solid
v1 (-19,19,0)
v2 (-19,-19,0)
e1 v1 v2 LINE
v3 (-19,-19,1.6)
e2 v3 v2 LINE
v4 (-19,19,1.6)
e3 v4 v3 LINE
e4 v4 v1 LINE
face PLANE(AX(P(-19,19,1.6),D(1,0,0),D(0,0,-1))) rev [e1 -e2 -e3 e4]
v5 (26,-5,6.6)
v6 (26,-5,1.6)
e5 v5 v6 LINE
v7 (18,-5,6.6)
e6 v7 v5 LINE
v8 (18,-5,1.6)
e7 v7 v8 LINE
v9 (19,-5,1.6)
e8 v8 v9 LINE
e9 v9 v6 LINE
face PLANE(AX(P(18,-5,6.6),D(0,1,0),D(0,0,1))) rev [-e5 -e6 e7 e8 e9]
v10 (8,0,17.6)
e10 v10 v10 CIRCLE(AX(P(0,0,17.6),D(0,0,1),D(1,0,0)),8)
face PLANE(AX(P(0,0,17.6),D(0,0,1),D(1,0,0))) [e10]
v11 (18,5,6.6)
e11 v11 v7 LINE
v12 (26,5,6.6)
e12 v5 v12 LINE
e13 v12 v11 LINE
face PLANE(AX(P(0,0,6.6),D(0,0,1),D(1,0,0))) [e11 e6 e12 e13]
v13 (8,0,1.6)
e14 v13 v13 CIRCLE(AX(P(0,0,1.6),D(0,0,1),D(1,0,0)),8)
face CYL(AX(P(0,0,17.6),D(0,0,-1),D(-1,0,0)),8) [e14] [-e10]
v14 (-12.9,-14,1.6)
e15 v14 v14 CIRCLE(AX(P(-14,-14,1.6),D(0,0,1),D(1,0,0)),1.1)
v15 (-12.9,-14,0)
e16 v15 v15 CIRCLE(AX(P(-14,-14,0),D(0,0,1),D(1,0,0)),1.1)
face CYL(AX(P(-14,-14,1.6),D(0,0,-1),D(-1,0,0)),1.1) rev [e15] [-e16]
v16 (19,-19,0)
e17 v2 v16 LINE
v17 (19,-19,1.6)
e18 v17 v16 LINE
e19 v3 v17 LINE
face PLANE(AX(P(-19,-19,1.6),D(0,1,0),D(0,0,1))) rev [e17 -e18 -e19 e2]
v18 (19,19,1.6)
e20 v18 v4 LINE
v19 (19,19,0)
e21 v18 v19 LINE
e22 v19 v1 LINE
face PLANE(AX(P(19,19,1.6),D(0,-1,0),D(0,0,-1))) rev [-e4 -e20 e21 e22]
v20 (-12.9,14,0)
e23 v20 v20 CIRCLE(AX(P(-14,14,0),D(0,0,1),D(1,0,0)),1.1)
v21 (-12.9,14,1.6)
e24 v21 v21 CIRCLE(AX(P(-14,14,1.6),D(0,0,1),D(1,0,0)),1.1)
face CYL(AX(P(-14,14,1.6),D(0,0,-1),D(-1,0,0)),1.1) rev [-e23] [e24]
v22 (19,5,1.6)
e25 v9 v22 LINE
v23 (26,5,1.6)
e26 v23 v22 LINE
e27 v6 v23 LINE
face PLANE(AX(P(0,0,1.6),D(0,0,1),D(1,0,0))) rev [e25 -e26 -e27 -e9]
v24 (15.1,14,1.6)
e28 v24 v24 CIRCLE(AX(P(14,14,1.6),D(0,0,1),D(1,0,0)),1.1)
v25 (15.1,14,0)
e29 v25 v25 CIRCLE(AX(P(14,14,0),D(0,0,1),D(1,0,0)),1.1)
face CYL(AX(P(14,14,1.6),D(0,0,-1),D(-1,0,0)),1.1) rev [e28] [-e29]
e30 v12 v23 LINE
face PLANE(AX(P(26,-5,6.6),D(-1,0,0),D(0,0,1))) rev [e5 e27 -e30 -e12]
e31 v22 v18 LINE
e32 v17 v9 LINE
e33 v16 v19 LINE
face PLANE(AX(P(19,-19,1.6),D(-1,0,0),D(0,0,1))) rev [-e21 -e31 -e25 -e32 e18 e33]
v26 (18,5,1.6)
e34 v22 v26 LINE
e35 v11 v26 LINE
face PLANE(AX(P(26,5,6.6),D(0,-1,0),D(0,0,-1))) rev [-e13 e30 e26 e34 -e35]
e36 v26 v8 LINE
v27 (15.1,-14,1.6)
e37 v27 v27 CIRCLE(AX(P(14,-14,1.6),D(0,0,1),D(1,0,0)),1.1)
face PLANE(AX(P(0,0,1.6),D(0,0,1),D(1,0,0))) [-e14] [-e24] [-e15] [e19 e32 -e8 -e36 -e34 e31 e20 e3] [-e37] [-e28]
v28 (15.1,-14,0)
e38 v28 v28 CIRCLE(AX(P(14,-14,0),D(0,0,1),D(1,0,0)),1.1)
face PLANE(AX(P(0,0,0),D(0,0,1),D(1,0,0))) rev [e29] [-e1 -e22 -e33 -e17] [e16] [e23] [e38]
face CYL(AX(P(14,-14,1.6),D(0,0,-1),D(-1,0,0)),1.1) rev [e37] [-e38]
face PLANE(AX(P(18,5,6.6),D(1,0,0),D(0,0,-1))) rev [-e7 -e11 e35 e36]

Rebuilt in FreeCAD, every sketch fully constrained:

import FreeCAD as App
import Part
import Sketcher

V = App.Vector


def add_polygon(sketch, points):
    """Adds a closed chain of lines whose ends are joined by coincident constraints."""
    first, n = sketch.GeometryCount, len(points)
    for a, b in zip(points, points[1:] + points[:1]):
        sketch.addGeometry(Part.LineSegment(App.Vector(*a, 0), App.Vector(*b, 0)), False)
    for i in range(n):
        sketch.addConstraint(Sketcher.Constraint("Coincident", first + i, 2, first + (i + 1) % n, 1))

doc = App.newDocument("Part")
body = doc.addObject("PartDesign::Body", "Body")

sketch1 = doc.addObject("Sketcher::SketchObject", "Sketch")
body.addObject(sketch1)
sketch1.AttachmentSupport = (doc.XY_Plane, [""])
sketch1.MapMode = "FlatFace"
add_polygon(sketch1, [(-19, 19), (-19, -19), (19, -19), (19, 19)])
sketch1.addGeometry(Part.Circle(V(-14, -14, 0), V(0, 0, 1), 1.1), False)
sketch1.addGeometry(Part.Circle(V(14, -14, 0), V(0, 0, 1), 1.1), False)
sketch1.addGeometry(Part.Circle(V(-14, 14, 0), V(0, 0, 1), 1.1), False)
sketch1.addGeometry(Part.Circle(V(14, 14, 0), V(0, 0, 1), 1.1), False)
sketch1.addConstraint([
    Sketcher.Constraint("Vertical", 0),
    Sketcher.Constraint("Horizontal", 1),
    Sketcher.Constraint("Vertical", 2),
    Sketcher.Constraint("Horizontal", 3),
    Sketcher.Constraint("Equal", 4, 5),
    Sketcher.Constraint("Equal", 5, 6),
    Sketcher.Constraint("Equal", 6, 7),
    Sketcher.Constraint("Symmetric", 5, 3, 6, 3, -1, 1),
    Sketcher.Constraint("Symmetric", 4, 3, 7, 3, -1, 1),
    Sketcher.Constraint("Symmetric", 0, 2, 2, 2, -1, 1),
    Sketcher.Constraint("Symmetric", 4, 3, 5, 3, -2),
    Sketcher.Constraint("Equal", 3, 0),
    Sketcher.Constraint("Diameter", 4, 2.2),
    Sketcher.Constraint("DistanceX", 1, 1, 1, 2, 38.0),
    Sketcher.Constraint("DistanceX", 4, 3, -1, 1, 14.0),
    Sketcher.Constraint("DistanceY", 4, 3, -1, 1, 14.0),
])
pad1 = doc.addObject("PartDesign::Pad", "Pad")
body.addObject(pad1)
pad1.Profile = sketch1
pad1.Length = 1.6

sketch2 = doc.addObject("Sketcher::SketchObject", "Sketch001")
body.addObject(sketch2)
sketch2.AttachmentSupport = (doc.XY_Plane, [""])
sketch2.MapMode = "FlatFace"
sketch2.AttachmentOffset = App.Placement(V(0, 0, 1.6), App.Rotation())
sketch2.addGeometry(Part.Circle(V(0, 0, 0), V(0, 0, 1), 8), False)
sketch2.addConstraint([
    Sketcher.Constraint("Coincident", 0, 3, -1, 1),
    Sketcher.Constraint("Diameter", 0, 16.0),
])
pad2 = doc.addObject("PartDesign::Pad", "Pad001")
body.addObject(pad2)
pad2.Profile = sketch2
pad2.Length = 16

sketch3 = doc.addObject("Sketcher::SketchObject", "Sketch002")
body.addObject(sketch3)
sketch3.AttachmentSupport = (doc.XY_Plane, [""])
sketch3.MapMode = "FlatFace"
sketch3.AttachmentOffset = App.Placement(V(0, 0, 1.6), App.Rotation())
add_polygon(sketch3, [(18, 5), (18, -5), (26, -5), (26, 5)])
sketch3.addConstraint([
    Sketcher.Constraint("Vertical", 0),
    Sketcher.Constraint("Horizontal", 1),
    Sketcher.Constraint("Vertical", 2),
    Sketcher.Constraint("Horizontal", 3),
    Sketcher.Constraint("DistanceX", 1, 1, 1, 2, 8.0),
    Sketcher.Constraint("DistanceY", 0, 2, 0, 1, 10.0),
    Sketcher.Constraint("DistanceX", -1, 1, 0, 2, 18.0),
    Sketcher.Constraint("DistanceY", 0, 2, -1, 1, 5.0),
])
pad3 = doc.addObject("PartDesign::Pad", "Pad002")
body.addObject(pad3)
pad3.Profile = sketch3
pad3.Length = 5

doc.recompute()
